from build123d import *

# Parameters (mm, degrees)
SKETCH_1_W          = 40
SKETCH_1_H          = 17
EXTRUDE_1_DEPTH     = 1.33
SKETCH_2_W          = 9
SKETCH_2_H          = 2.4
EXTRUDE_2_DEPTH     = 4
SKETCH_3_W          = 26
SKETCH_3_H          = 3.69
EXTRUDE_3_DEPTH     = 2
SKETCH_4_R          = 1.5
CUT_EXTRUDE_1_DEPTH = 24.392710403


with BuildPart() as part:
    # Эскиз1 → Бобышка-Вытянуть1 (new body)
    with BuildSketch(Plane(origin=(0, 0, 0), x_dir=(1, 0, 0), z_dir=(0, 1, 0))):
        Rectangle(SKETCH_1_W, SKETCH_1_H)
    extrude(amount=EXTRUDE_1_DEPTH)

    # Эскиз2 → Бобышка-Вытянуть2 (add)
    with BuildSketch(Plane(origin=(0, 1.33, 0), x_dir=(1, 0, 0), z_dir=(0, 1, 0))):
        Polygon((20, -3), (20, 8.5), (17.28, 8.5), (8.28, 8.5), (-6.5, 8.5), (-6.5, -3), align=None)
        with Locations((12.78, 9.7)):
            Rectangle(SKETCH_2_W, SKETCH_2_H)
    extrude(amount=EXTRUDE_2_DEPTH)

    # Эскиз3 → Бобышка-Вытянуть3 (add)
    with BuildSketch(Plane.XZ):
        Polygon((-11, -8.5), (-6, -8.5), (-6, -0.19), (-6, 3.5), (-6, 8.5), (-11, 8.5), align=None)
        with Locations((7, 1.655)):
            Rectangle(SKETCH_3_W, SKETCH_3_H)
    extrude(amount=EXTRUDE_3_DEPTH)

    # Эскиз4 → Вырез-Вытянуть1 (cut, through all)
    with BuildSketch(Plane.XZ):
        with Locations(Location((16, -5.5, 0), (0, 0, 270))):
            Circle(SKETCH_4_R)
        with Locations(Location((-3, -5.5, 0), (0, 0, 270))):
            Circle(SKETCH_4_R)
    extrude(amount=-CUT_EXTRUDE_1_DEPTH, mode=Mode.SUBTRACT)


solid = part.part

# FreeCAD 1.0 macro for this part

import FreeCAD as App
import Part
import Sketcher

V = App.Vector

doc = App.newDocument("Part")
body = doc.addObject("PartDesign::Body", "Body")

# Sketch on XZ plane
sketch1 = body.newObject("Sketcher::SketchObject", "Sketch")
sketch1.AttachmentSupport = (doc.getObject("XZ_Plane"), [""])
sketch1.MapMode = "FlatFace"
sketch1.addGeometry([
    Part.LineSegment(V(-20, -8, 0), V(-20, 8, 0)),
    Part.LineSegment(V(-20, 8, 0), V(20, 8, 0)),
    Part.LineSegment(V(20, 8, 0), V(20, -8, 0)),
    Part.LineSegment(V(20, -8, 0), V(-20, -8, 0)),
], False)
sketch1.addConstraint([
    Sketcher.Constraint("Coincident", 0, 2, 1, 1),
    Sketcher.Constraint("Coincident", 1, 2, 2, 1),
    Sketcher.Constraint("Coincident", 2, 2, 3, 1),
    Sketcher.Constraint("Coincident", 3, 2, 0, 1),
    Sketcher.Constraint("Vertical", 0),
    Sketcher.Constraint("Horizontal", 1),
    Sketcher.Constraint("Vertical", 2),
    Sketcher.Constraint("Horizontal", 3),
    Sketcher.Constraint("Symmetric", 0, 2, 2, 2, -1, 1),
    Sketcher.Constraint("DistanceX", 1, 1, 1, 2, 40.0),
    Sketcher.Constraint("DistanceY", 0, 1, 0, 2, 17.0),
])
pad1 = body.newObject("PartDesign::Pad", "Pad")
pad1.Profile = sketch1
pad1.Length = 1.33
pad1.Reversed = True

# Sketch on XZ plane
sketch2 = body.newObject("Sketcher::SketchObject", "Sketch001")
sketch2.AttachmentSupport = (doc.getObject("XZ_Plane"), [""])
sketch2.MapMode = "FlatFace"
sketch2.AttachmentOffset = App.Placement(V(0, 0, -1.33), App.Rotation())
sketch2.addGeometry([
    Part.LineSegment(V(20, 3, 0), V(20, -8.5, 0)),  # 0
    Part.LineSegment(V(20, -8.5, 0), V(17.3, -8.5, 0)),  # 1
    Part.LineSegment(V(17.3, -8.5, 0), V(17.3, -10.9, 0)),  # 2
    Part.LineSegment(V(17.3, -10.9, 0), V(8.3, -10.9, 0)),  # 3
    Part.LineSegment(V(8.3, -10.9, 0), V(8.3, -8.5, 0)),  # 4
    Part.LineSegment(V(8.3, -8.5, 0), V(-6.5, -8.5, 0)),  # 5
    Part.LineSegment(V(-6.5, -8.5, 0), V(-6.5, 3, 0)),  # 6
    Part.LineSegment(V(-6.5, 3, 0), V(20, 3, 0)),  # 7
], False)
sketch2.addConstraint([
    Sketcher.Constraint("Coincident", 0, 2, 1, 1),
    Sketcher.Constraint("Coincident", 1, 2, 2, 1),
    Sketcher.Constraint("Coincident", 2, 2, 3, 1),
    Sketcher.Constraint("Coincident", 3, 2, 4, 1),
    Sketcher.Constraint("Coincident", 4, 2, 5, 1),
    Sketcher.Constraint("Coincident", 5, 2, 6, 1),
    Sketcher.Constraint("Coincident", 6, 2, 7, 1),
    Sketcher.Constraint("Coincident", 7, 2, 0, 1),
    Sketcher.Constraint("Vertical", 0),
    Sketcher.Constraint("Horizontal", 1),
    Sketcher.Constraint("Vertical", 2),
    Sketcher.Constraint("Horizontal", 3),
    Sketcher.Constraint("Vertical", 4),
    Sketcher.Constraint("Horizontal", 5),
    Sketcher.Constraint("Vertical", 6),
    Sketcher.Constraint("Horizontal", 7),
    Sketcher.Constraint("Horizontal", 1, 2, 4, 2),
    Sketcher.Constraint("DistanceX", 3, 2, 3, 1, 9.0),
    Sketcher.Constraint("DistanceX", 7, 1, 7, 2, 26.5),
    Sketcher.Constraint("DistanceY", 0, 2, 0, 1, 11.5),
    Sketcher.Constraint("DistanceY", 2, 2, 2, 1, 2.4),
    Sketcher.Constraint("DistanceX", -1, 1, 0, 2, 20.0),
    Sketcher.Constraint("DistanceY", -1, 1, 6, 2, 3.0),
    Sketcher.Constraint("DistanceX", 1, 2, 1, 1, 2.72),
])
pad2 = body.newObject("PartDesign::Pad", "Pad001")
pad2.Profile = sketch2
pad2.Length = 4
pad2.Reversed = True

# Sketch on XZ plane
sketch3 = body.newObject("Sketcher::SketchObject", "Sketch002")
sketch3.AttachmentSupport = (doc.getObject("XZ_Plane"), [""])
sketch3.MapMode = "FlatFace"
sketch3.addGeometry([
    Part.LineSegment(V(-11, -8.5, 0), V(-6, -8.5, 0)),  # 0
    Part.LineSegment(V(-6, -8.5, 0), V(-6, -0.2, 0)),  # 1
    Part.LineSegment(V(-6, -0.2, 0), V(20, -0.2, 0)),  # 2
    Part.LineSegment(V(20, -0.2, 0), V(20, 3.5, 0)),  # 3
    Part.LineSegment(V(20, 3.5, 0), V(-6, 3.5, 0)),  # 4
    Part.LineSegment(V(-6, 3.5, 0), V(-6, 8.5, 0)),  # 5
    Part.LineSegment(V(-6, 8.5, 0), V(-11, 8.5, 0)),  # 6
    Part.LineSegment(V(-11, 8.5, 0), V(-11, -8.5, 0)),  # 7
], False)
sketch3.addConstraint([
    Sketcher.Constraint("Coincident", 0, 2, 1, 1),
    Sketcher.Constraint("Coincident", 1, 2, 2, 1),
    Sketcher.Constraint("Coincident", 2, 2, 3, 1),
    Sketcher.Constraint("Coincident", 3, 2, 4, 1),
    Sketcher.Constraint("Coincident", 4, 2, 5, 1),
    Sketcher.Constraint("Coincident", 5, 2, 6, 1),
    Sketcher.Constraint("Coincident", 6, 2, 7, 1),
    Sketcher.Constraint("Coincident", 7, 2, 0, 1),
    Sketcher.Constraint("Horizontal", 0),
    Sketcher.Constraint("Vertical", 1),
    Sketcher.Constraint("Horizontal", 2),
    Sketcher.Constraint("Vertical", 3),
    Sketcher.Constraint("Horizontal", 4),
    Sketcher.Constraint("Vertical", 5),
    Sketcher.Constraint("Horizontal", 6),
    Sketcher.Constraint("Vertical", 7),
    Sketcher.Constraint("Symmetric", 0, 2, 5, 2, -1),
    Sketcher.Constraint("Equal", 6, 5),
    Sketcher.Constraint("DistanceX", 0, 1, 0, 2, 5.0),
    Sketcher.Constraint("DistanceX", 2, 1, 2, 2, 26.0),
    Sketcher.Constraint("DistanceY", 7, 2, 7, 1, 17.0),
    Sketcher.Constraint("DistanceX", 0, 2, -1, 1, 6.0),
    Sketcher.Constraint("DistanceY", 1, 1, 1, 2, 8.31),
])
pad3 = body.newObject("PartDesign::Pad", "Pad002")
pad3.Profile = sketch3
pad3.Length = 2

# Sketch on XZ plane
sketch4 = body.newObject("Sketcher::SketchObject", "Sketch003")
sketch4.AttachmentSupport = (doc.getObject("XZ_Plane"), [""])
sketch4.MapMode = "FlatFace"
sketch4.addGeometry([
    Part.Circle(V(16, -5.5, 0), V(0, 0, 1), 1.5),
    Part.Circle(V(-3, -5.5, 0), V(0, 0, 1), 1.5),
], False)
sketch4.addConstraint([
    Sketcher.Constraint("Equal", 0, 1),
    Sketcher.Constraint("Horizontal", 0, 3, 1, 3),
    Sketcher.Constraint("Diameter", 0, 3.0),
    Sketcher.Constraint("DistanceX", -1, 1, 0, 3, 16.0),
    Sketcher.Constraint("DistanceX", 1, 3, -1, 1, 3.0),
    Sketcher.Constraint("DistanceY", 0, 3, -1, 1, 5.5),
])
pocket1 = body.newObject("PartDesign::Pocket", "Pocket")
pocket1.Profile = sketch4
pocket1.Type = "ThroughAll"

doc.recompute()
